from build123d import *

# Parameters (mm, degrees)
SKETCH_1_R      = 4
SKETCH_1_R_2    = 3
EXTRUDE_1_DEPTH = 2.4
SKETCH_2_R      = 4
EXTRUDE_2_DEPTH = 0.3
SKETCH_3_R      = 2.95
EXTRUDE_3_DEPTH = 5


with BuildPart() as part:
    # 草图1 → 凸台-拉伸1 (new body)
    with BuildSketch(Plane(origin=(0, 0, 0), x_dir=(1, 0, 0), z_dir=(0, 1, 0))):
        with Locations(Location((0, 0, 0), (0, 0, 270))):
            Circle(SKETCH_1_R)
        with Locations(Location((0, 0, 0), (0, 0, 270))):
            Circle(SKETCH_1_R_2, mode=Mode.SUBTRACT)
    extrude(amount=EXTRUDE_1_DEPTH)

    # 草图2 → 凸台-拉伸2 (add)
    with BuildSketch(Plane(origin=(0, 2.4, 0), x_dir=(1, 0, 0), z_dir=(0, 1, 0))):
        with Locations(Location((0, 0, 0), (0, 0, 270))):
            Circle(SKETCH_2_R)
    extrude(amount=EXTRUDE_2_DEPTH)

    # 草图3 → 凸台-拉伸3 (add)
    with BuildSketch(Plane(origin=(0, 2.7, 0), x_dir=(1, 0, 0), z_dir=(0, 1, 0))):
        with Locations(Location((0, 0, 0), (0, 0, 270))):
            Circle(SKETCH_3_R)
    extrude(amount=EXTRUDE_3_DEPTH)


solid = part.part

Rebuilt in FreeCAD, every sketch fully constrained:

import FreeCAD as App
import Part
import Sketcher

doc = App.newDocument("Part")
params = doc.addObject("Spreadsheet::Sheet", "Params")
for row, (alias, value) in enumerate([
    ("sketch1_diameter", "8 mm"),
    ("sketch1_diameter2", "6 mm"),
    ("pad1_length", "2.4 mm"),
    ("sketch2_diameter", "8 mm"),
    ("pad2_length", "0.3 mm"),
    ("sketch3_diameter", "5.9 mm"),
    ("pad3_length", "5 mm"),
], start=1):
    params.set(f"A{row}", alias)
    params.set(f"B{row}", "=" + value)
    params.setAlias(f"B{row}", alias)

body = doc.addObject("PartDesign::Body", "Body")

# Sketch on XZ plane
sketch1 = body.newObject("Sketcher::SketchObject", "Sketch")
sketch1.AttachmentSupport = (doc.getObject("XZ_Plane"), [""])
sketch1.MapMode = "FlatFace"
sketch1.addGeometry([
    Part.Circle(App.Vector(0, 0, 0), App.Vector(0, 0, 1), 4),
    Part.Circle(App.Vector(0, 0, 0), App.Vector(0, 0, 1), 3),
], False)
sketch1.addConstraint([
    Sketcher.Constraint("Coincident", 0, 3, -1, 1),
    Sketcher.Constraint("Coincident", 1, 3, -1, 1),
    Sketcher.Constraint("Diameter", 0, 8.0),
    Sketcher.Constraint("Diameter", 1, 6.0),
])
sketch1.setExpression("Constraints[2]", "Params.sketch1_diameter")
sketch1.setExpression("Constraints[3]", "Params.sketch1_diameter2")
pad1 = body.newObject("PartDesign::Pad", "Pad")
pad1.Profile = sketch1
pad1.setExpression("Length", "Params.pad1_length")
pad1.Reversed = True

# Sketch on XZ plane
sketch2 = body.newObject("Sketcher::SketchObject", "Sketch001")
sketch2.AttachmentSupport = (doc.getObject("XZ_Plane"), [""])
sketch2.MapMode = "FlatFace"
sketch2.AttachmentOffset = App.Placement(App.Vector(0, 0, -2.4), App.Rotation())
sketch2.addGeometry(Part.Circle(App.Vector(0, 0, 0), App.Vector(0, 0, 1), 4), False)
sketch2.addConstraint([
    Sketcher.Constraint("Coincident", 0, 3, -1, 1),
    Sketcher.Constraint("Diameter", 0, 8.0),
])
sketch2.setExpression("Constraints[1]", "Params.sketch2_diameter")
pad2 = body.newObject("PartDesign::Pad", "Pad001")
pad2.Profile = sketch2
pad2.setExpression("Length", "Params.pad2_length")
pad2.Reversed = True

# Sketch on XZ plane
sketch3 = body.newObject("Sketcher::SketchObject", "Sketch002")
sketch3.AttachmentSupport = (doc.getObject("XZ_Plane"), [""])
sketch3.MapMode = "FlatFace"
sketch3.AttachmentOffset = App.Placement(App.Vector(0, 0, -2.7), App.Rotation())
sketch3.addGeometry(Part.Circle(App.Vector(0, 0, 0), App.Vector(0, 0, 1), 3), False)
sketch3.addConstraint([
    Sketcher.Constraint("Coincident", 0, 3, -1, 1),
    Sketcher.Constraint("Diameter", 0, 5.9),
])
sketch3.setExpression("Constraints[1]", "Params.sketch3_diameter")
pad3 = body.newObject("PartDesign::Pad", "Pad002")
pad3.Profile = sketch3
pad3.setExpression("Length", "Params.pad3_length")
pad3.Reversed = True

doc.recompute()
